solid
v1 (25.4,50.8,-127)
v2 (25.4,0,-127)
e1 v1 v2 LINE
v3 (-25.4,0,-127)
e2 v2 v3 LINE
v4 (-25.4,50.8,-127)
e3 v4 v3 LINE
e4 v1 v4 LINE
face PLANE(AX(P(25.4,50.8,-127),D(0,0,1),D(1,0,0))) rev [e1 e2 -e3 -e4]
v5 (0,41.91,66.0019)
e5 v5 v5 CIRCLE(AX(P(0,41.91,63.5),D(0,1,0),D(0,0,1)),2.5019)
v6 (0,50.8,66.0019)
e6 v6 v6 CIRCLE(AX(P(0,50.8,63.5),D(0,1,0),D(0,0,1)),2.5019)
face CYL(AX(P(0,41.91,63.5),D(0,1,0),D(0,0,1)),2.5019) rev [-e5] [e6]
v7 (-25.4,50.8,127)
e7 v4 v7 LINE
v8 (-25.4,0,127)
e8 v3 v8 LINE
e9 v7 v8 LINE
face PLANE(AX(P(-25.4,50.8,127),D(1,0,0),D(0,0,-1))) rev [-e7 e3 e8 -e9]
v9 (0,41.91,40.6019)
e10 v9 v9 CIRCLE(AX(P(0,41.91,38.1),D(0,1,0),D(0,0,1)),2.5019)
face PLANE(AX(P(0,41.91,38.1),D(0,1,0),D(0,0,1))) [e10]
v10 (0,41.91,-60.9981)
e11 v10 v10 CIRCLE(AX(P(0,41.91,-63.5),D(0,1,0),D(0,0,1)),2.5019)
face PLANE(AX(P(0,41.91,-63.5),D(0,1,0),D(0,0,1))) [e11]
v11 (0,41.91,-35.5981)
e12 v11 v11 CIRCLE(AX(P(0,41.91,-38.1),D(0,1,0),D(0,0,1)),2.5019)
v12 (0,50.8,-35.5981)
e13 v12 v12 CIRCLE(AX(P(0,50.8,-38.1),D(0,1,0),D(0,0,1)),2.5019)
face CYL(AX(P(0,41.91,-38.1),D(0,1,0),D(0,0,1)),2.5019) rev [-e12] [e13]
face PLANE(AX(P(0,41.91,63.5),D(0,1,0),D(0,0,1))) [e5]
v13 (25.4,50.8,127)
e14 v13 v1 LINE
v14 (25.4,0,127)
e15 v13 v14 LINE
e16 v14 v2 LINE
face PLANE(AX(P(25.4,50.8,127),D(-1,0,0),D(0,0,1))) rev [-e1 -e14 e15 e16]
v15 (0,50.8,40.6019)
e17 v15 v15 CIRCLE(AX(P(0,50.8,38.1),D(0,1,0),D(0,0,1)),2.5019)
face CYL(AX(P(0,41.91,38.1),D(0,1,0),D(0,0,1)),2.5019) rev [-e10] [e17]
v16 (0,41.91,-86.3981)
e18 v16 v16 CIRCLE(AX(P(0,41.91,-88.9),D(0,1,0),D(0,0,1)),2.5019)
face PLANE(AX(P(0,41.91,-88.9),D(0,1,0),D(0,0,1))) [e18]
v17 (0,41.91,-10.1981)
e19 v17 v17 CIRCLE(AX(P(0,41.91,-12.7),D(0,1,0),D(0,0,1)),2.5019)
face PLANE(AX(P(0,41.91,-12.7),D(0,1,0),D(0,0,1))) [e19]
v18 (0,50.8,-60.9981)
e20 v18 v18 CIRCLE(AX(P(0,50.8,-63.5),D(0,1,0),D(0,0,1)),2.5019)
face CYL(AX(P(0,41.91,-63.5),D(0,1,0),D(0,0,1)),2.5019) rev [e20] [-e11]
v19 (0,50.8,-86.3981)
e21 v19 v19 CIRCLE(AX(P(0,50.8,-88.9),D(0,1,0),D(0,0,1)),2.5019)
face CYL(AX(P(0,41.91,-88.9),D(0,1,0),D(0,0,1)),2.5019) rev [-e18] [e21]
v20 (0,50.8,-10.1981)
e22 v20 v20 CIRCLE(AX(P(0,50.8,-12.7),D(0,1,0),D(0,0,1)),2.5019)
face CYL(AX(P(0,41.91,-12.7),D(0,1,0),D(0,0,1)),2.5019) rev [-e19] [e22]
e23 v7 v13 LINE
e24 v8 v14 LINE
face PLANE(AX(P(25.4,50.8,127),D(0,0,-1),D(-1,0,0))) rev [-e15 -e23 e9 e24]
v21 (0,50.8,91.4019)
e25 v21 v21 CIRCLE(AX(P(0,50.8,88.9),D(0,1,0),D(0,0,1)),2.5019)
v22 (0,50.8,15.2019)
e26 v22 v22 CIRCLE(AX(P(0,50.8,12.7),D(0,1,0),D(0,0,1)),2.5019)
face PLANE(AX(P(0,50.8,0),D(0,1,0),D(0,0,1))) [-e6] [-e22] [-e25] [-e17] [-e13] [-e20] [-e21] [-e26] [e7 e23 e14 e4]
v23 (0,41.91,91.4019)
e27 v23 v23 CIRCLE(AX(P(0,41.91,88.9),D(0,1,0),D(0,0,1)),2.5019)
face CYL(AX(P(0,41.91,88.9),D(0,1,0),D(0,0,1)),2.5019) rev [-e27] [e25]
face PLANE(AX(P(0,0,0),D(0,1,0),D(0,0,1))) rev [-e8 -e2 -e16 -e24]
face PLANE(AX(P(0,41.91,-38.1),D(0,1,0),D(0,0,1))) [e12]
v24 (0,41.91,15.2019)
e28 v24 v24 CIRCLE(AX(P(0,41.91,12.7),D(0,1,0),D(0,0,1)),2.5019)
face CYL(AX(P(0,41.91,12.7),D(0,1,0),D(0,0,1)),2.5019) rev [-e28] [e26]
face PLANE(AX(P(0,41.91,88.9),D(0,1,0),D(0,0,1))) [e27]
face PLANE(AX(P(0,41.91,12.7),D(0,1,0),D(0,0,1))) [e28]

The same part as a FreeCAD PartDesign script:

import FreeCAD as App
import Part
import Sketcher

V = App.Vector
Q = App.Units.Quantity


def add_polygon(sketch, points):
    """Adds a closed chain of lines whose ends are joined by coincident constraints."""
    first, n = sketch.GeometryCount, len(points)
    for a, b in zip(points, points[1:] + points[:1]):
        sketch.addGeometry(Part.LineSegment(App.Vector(*a, 0), App.Vector(*b, 0)), False)
    for i in range(n):
        sketch.addConstraint(Sketcher.Constraint("Coincident", first + i, 2, first + (i + 1) % n, 1))

doc = App.newDocument("Part")
body = doc.addObject("PartDesign::Body", "Body")

# Sketch on XZ plane
sketch1 = doc.addObject("Sketcher::SketchObject", "Sketch")
body.addObject(sketch1)
sketch1.AttachmentSupport = (doc.XZ_Plane, [""])
sketch1.MapMode = "FlatFace"
add_polygon(sketch1, [(-25, -127), (-25, 127), (25, 127), (25, -127)])  # lines 0-3
sketch1.addConstraint(Sketcher.Constraint("Vertical", 0))
sketch1.addConstraint(Sketcher.Constraint("Horizontal", 1))
sketch1.addConstraint(Sketcher.Constraint("Vertical", 2))
sketch1.addConstraint(Sketcher.Constraint("Horizontal", 3))
sketch1.addConstraint(Sketcher.Constraint("Symmetric", 0, 2, 2, 2, -1, 1))
sketch1.addConstraint(Sketcher.Constraint("DistanceX", 1, 1, 1, 2, Q("2 in")))
sketch1.addConstraint(Sketcher.Constraint("DistanceY", 0, 1, 0, 2, Q("10 in")))
pad1 = doc.addObject("PartDesign::Pad", "Pad")
body.addObject(pad1)
pad1.Profile = sketch1
pad1.Length = Q("2 in")
pad1.Reversed = True

# Sketch on XZ plane
sketch2 = doc.addObject("Sketcher::SketchObject", "Sketch001")
body.addObject(sketch2)
sketch2.AttachmentSupport = (doc.XZ_Plane, [""])
sketch2.MapMode = "FlatFace"
sketch2.AttachmentOffset = App.Placement(V(0, 0, -2 * 25.4), App.Rotation())
sketch2.addGeometry(Part.Circle(V(0, -88.9, 0), V(0, 0, 1), 2.5), False)
sketch2.addGeometry(Part.Circle(V(0, -63.5, 0), V(0, 0, 1), 2.5), False)
sketch2.addGeometry(Part.Circle(V(0, -38.1, 0), V(0, 0, 1), 2.5), False)
sketch2.addGeometry(Part.Circle(V(0, -12.7, 0), V(0, 0, 1), 2.5), False)
sketch2.addGeometry(Part.Circle(V(0, 12.7, 0), V(0, 0, 1), 2.5), False)
sketch2.addGeometry(Part.Circle(V(0, 38.1, 0), V(0, 0, 1), 2.5), False)
sketch2.addGeometry(Part.Circle(V(0, 63.5, 0), V(0, 0, 1), 2.5), False)
sketch2.addGeometry(Part.Circle(V(0, 88.9, 0), V(0, 0, 1), 2.5), False)
sketch2.addConstraint(Sketcher.Constraint("Equal", 0, 1))
sketch2.addConstraint(Sketcher.Constraint("Equal", 1, 2))
sketch2.addConstraint(Sketcher.Constraint("Equal", 2, 3))
sketch2.addConstraint(Sketcher.Constraint("Equal", 3, 4))
sketch2.addConstraint(Sketcher.Constraint("Equal", 4, 5))
sketch2.addConstraint(Sketcher.Constraint("Equal", 5, 6))
sketch2.addConstraint(Sketcher.Constraint("Equal", 6, 7))
sketch2.addConstraint(Sketcher.Constraint("Symmetric", 3, 3, 4, 3, -1, 1))
sketch2.addConstraint(Sketcher.Constraint("Symmetric", 2, 3, 5, 3, -1, 1))
sketch2.addConstraint(Sketcher.Constraint("Symmetric", 1, 3, 6, 3, -1, 1))
sketch2.addConstraint(Sketcher.Constraint("Symmetric", 0, 3, 7, 3, -1, 1))
sketch2.addConstraint(Sketcher.Constraint("PointOnObject", 0, 3, -2))
sketch2.addConstraint(Sketcher.Constraint("PointOnObject", 1, 3, -2))
sketch2.addConstraint(Sketcher.Constraint("PointOnObject", 2, 3, -2))
sketch2.addConstraint(Sketcher.Constraint("PointOnObject", 3, 3, -2))
sketch2.addConstraint(Sketcher.Constraint("Diameter", 0, Q("0.197 in")))
sketch2.addConstraint(Sketcher.Constraint("DistanceY", 0, 3, 1, 3, Q("1 in")))
sketch2.addConstraint(Sketcher.Constraint("DistanceY", 1, 3, 2, 3, Q("1 in")))
sketch2.addConstraint(Sketcher.Constraint("DistanceY", 2, 3, 3, 3, Q("1 in")))
sketch2.addConstraint(Sketcher.Constraint("DistanceY", 3, 3, 4, 3, Q("1 in")))
pocket1 = doc.addObject("PartDesign::Pocket", "Pocket")
body.addObject(pocket1)
pocket1.Profile = sketch2
pocket1.Length = Q("0.35 in")
pocket1.Reversed = True

doc.recompute()
